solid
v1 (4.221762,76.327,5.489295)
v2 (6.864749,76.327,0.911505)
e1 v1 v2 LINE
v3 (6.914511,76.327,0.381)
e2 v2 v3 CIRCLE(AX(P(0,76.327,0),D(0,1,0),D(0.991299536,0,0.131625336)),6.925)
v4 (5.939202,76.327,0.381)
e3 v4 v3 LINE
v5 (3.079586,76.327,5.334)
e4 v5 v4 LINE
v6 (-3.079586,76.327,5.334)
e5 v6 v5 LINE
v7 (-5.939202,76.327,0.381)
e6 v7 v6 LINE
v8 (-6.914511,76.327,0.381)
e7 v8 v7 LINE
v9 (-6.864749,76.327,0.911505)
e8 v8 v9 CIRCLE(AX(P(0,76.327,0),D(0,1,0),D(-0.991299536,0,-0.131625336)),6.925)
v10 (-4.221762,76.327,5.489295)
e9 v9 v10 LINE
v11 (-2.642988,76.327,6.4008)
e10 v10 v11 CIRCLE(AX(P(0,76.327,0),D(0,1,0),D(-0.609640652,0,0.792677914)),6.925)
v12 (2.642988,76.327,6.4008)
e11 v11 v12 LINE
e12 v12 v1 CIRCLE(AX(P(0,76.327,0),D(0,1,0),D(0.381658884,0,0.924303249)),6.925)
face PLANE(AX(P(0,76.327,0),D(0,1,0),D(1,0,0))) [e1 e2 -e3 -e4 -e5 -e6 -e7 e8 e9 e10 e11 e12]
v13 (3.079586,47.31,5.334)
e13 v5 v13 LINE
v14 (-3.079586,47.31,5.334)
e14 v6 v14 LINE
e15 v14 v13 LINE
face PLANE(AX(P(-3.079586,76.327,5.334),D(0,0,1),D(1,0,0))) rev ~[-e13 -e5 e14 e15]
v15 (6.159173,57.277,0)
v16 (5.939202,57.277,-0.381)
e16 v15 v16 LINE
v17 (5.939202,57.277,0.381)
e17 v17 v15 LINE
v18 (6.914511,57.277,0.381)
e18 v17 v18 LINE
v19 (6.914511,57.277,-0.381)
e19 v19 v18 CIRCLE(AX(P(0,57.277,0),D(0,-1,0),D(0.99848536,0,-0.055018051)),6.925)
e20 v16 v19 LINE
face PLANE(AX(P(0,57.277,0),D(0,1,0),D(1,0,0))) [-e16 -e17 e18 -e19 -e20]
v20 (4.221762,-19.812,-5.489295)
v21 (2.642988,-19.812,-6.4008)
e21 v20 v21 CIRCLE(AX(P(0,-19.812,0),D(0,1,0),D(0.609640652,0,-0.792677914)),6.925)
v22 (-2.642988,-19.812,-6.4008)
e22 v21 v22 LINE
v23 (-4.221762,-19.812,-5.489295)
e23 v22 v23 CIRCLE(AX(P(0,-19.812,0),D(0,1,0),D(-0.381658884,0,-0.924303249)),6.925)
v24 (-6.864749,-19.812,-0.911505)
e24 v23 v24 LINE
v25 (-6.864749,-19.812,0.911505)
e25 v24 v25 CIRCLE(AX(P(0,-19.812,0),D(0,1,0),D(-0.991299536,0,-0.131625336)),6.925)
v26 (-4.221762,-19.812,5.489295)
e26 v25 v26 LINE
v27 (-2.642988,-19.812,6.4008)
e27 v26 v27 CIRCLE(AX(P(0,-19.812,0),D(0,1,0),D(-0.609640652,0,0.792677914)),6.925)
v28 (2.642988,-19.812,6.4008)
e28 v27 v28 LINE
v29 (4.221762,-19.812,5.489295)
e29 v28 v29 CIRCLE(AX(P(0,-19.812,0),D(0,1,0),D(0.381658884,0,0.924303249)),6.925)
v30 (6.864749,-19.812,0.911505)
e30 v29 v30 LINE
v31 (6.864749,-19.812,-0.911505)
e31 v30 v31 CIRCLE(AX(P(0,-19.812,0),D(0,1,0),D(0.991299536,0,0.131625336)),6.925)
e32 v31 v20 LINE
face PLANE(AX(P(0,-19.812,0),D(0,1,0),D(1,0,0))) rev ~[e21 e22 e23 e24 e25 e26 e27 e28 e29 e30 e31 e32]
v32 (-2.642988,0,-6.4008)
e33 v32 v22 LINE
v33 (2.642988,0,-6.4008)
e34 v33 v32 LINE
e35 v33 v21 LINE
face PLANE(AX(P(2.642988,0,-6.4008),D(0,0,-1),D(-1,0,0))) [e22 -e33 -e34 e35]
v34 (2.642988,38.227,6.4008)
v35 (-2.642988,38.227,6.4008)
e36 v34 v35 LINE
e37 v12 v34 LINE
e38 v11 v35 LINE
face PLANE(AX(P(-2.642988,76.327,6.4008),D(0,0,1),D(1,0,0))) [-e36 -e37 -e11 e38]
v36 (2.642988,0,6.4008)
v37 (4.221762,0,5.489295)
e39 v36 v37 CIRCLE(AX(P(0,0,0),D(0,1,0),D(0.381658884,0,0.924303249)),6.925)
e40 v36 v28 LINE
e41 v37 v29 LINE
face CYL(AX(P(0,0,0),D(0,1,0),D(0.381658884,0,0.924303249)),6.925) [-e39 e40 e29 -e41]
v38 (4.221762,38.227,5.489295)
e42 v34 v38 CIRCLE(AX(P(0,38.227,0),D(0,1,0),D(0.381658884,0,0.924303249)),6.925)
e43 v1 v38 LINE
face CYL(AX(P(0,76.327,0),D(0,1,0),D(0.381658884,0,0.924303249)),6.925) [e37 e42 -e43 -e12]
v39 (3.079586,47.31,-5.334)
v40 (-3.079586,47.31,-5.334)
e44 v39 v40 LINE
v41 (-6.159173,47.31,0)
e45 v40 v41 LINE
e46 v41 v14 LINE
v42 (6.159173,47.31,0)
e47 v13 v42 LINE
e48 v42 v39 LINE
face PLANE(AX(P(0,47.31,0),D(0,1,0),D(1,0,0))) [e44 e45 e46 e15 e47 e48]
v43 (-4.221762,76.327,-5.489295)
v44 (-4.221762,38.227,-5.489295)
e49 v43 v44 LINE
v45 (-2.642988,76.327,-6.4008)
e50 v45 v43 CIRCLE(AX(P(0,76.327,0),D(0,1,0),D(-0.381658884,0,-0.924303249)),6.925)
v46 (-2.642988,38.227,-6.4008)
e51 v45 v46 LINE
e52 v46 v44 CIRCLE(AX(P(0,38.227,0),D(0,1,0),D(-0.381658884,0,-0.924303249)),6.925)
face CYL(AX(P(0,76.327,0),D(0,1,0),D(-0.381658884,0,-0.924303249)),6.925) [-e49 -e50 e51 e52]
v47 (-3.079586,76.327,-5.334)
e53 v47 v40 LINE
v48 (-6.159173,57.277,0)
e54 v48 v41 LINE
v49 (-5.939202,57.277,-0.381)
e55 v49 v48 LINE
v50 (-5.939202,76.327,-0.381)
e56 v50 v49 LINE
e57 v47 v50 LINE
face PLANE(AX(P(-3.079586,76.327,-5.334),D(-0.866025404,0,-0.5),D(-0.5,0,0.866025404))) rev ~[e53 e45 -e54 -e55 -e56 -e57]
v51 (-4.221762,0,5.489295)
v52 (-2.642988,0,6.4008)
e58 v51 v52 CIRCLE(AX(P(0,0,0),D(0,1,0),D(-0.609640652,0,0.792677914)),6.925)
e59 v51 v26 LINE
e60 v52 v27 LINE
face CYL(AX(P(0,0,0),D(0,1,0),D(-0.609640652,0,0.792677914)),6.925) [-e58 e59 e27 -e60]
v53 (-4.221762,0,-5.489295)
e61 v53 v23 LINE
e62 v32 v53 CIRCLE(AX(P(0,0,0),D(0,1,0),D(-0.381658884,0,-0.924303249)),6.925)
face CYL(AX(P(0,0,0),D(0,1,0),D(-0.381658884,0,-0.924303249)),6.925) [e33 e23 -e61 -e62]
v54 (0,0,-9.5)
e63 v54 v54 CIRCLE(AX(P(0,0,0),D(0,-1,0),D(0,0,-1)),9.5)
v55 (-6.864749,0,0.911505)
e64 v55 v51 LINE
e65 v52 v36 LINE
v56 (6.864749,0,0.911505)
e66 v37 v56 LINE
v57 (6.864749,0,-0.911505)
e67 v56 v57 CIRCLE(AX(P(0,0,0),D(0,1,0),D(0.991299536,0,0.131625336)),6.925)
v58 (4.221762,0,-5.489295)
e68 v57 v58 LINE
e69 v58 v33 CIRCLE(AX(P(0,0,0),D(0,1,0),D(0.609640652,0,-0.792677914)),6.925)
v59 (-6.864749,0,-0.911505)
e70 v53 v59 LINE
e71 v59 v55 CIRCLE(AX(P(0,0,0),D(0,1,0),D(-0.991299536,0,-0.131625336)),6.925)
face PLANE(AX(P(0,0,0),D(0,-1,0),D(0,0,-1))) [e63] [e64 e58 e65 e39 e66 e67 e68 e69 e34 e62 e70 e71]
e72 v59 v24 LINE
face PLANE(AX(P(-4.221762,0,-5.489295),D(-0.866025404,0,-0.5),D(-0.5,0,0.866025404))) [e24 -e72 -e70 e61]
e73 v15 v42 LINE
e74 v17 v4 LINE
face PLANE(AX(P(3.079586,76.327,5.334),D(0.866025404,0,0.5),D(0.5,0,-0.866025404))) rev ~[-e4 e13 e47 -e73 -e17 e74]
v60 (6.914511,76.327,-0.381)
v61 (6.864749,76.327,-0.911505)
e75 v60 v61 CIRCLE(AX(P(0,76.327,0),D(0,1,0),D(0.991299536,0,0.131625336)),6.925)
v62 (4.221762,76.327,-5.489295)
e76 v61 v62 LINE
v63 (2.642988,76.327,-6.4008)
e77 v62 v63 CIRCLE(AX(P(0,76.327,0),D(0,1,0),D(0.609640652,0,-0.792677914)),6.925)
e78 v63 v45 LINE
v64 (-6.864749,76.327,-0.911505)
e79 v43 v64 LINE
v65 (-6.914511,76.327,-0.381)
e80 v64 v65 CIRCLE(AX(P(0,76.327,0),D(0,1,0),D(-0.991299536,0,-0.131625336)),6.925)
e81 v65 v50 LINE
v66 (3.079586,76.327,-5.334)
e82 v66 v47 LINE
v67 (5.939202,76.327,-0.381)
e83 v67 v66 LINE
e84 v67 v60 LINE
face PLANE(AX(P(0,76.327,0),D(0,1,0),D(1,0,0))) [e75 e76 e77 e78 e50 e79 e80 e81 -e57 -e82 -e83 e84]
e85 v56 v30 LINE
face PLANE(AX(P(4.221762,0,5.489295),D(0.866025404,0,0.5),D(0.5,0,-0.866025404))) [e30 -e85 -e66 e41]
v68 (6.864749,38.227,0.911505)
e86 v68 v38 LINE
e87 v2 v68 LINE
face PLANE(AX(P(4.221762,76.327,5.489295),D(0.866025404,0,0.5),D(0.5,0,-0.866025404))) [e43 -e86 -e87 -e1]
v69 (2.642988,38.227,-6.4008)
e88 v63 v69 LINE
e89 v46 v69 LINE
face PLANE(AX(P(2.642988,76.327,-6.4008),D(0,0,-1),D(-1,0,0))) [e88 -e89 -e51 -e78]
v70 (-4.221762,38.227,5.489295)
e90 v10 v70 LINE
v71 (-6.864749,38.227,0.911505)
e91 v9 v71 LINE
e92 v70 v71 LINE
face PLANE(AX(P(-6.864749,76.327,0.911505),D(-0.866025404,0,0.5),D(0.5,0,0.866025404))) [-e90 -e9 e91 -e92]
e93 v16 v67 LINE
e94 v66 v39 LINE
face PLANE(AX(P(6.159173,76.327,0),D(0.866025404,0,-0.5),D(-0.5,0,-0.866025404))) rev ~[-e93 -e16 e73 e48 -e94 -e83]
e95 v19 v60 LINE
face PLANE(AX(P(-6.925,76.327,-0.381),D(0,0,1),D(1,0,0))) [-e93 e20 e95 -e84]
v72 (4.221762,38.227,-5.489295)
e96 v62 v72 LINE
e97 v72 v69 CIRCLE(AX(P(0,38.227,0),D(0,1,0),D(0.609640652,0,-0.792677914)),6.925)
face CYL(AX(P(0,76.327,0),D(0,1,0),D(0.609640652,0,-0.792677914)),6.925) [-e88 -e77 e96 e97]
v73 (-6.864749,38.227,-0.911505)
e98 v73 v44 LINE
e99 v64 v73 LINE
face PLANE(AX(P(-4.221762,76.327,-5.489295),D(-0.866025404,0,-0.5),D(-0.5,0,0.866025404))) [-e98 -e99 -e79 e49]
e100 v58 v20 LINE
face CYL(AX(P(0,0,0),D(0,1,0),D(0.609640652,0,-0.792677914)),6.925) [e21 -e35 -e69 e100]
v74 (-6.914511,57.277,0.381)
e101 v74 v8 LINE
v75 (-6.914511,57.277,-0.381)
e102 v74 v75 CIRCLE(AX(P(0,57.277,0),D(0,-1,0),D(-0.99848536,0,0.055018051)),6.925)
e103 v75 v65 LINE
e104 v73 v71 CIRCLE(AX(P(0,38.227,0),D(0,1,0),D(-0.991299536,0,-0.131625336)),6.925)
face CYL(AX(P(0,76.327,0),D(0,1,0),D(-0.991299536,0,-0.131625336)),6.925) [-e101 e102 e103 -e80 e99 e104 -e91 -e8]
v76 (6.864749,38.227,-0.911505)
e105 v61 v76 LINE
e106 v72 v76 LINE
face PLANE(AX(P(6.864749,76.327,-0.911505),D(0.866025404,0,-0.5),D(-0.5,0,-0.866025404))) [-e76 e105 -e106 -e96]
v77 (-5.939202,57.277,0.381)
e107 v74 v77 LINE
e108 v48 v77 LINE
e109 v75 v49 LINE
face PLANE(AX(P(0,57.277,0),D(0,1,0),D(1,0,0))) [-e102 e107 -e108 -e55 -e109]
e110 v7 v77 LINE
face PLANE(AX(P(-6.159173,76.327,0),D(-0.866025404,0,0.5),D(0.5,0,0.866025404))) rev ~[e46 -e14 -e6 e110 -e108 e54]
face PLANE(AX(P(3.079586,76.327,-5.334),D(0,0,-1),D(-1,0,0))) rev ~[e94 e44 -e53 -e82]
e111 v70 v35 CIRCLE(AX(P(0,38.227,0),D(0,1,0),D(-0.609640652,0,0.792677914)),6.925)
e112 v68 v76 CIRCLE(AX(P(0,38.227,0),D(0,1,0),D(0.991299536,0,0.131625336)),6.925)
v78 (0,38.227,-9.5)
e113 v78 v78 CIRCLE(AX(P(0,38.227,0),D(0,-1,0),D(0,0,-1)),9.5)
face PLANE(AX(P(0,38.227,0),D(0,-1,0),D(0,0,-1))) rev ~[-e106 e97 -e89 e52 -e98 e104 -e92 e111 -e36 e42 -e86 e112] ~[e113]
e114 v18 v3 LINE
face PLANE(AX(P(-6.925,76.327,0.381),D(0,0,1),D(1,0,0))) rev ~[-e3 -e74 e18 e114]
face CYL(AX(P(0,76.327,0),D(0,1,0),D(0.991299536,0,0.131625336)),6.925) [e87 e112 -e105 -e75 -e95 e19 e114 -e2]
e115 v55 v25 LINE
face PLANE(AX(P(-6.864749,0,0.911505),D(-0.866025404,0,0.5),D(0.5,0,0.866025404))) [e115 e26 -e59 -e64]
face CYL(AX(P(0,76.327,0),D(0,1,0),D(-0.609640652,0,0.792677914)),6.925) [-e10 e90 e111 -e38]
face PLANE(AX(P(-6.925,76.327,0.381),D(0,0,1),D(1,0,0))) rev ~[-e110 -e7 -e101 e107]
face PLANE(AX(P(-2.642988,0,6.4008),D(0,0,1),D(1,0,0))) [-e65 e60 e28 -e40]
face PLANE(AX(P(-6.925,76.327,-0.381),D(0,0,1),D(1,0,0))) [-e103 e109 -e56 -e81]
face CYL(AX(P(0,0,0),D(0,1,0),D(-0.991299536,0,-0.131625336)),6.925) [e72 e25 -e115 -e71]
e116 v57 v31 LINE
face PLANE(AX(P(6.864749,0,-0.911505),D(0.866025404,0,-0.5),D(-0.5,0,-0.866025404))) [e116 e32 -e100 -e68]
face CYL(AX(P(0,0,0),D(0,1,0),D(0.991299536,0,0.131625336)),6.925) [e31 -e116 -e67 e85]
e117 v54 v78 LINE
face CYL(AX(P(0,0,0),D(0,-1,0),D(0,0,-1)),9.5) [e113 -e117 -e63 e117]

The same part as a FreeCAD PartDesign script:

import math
import FreeCAD as App
import Part
import Sketcher
Q = App.Units.Quantity


def add_polygon(sketch, points):
    """Adds a closed chain of lines whose ends are joined by coincident constraints."""
    first, n = sketch.GeometryCount, len(points)
    for a, b in zip(points, points[1:] + points[:1]):
        sketch.addGeometry(Part.LineSegment(App.Vector(*a, 0), App.Vector(*b, 0)), False)
    for i in range(n):
        sketch.addConstraint(Sketcher.Constraint("Coincident", first + i, 2, first + (i + 1) % n, 1))

doc = App.newDocument("Part")
body = doc.addObject("PartDesign::Body", "Body")

sketch1 = body.newObject("Sketcher::SketchObject", "Sketch")
sketch1.AttachmentSupport = (doc.getObject("XZ_Plane"), [""])
sketch1.MapMode = "FlatFace"
sketch1.addGeometry(Part.LineSegment(App.Vector(6.864749, -0.911505, 0), App.Vector(4.221762, -5.489295, 0)), False)
sketch1.addGeometry(Part.ArcOfCircle(Part.Circle(App.Vector(0, 0, 0), App.Vector(0, 0, 1), 6.925), math.radians(-67.563524), math.radians(-52.436476)), False)
sketch1.addGeometry(Part.LineSegment(App.Vector(2.642988, -6.4008, 0), App.Vector(-2.642988, -6.4008, 0)), False)
sketch1.addGeometry(Part.ArcOfCircle(Part.Circle(App.Vector(0, 0, 0), App.Vector(0, 0, 1), 6.925), math.radians(-127.563524), math.radians(-112.436476)), False)
sketch1.addGeometry(Part.LineSegment(App.Vector(-4.221762, -5.489295, 0), App.Vector(-6.864749, -0.911505, 0)), False)
sketch1.addGeometry(Part.ArcOfCircle(Part.Circle(App.Vector(0, 0, 0), App.Vector(0, 0, 1), 6.925), math.radians(172.436476), math.radians(187.563524)), False)
sketch1.addGeometry(Part.LineSegment(App.Vector(-6.864749, 0.911505, 0), App.Vector(-4.221762, 5.489295, 0)), False)
sketch1.addGeometry(Part.ArcOfCircle(Part.Circle(App.Vector(0, 0, 0), App.Vector(0, 0, 1), 6.925), math.radians(112.436476), math.radians(127.563524)), False)
sketch1.addGeometry(Part.LineSegment(App.Vector(-2.642988, 6.4008, 0), App.Vector(2.642988, 6.4008, 0)), False)
sketch1.addGeometry(Part.ArcOfCircle(Part.Circle(App.Vector(0, 0, 0), App.Vector(0, 0, 1), 6.925), math.radians(52.436476), math.radians(67.563524)), False)
sketch1.addGeometry(Part.LineSegment(App.Vector(4.221762, 5.489295, 0), App.Vector(6.864749, 0.911505, 0)), False)
sketch1.addGeometry(Part.ArcOfCircle(Part.Circle(App.Vector(0, 0, 0), App.Vector(0, 0, 1), 6.925), math.radians(-7.563524), math.radians(7.563524)), False)
sketch1.addConstraint(Sketcher.Constraint("Coincident", 0, 2, 1, 2))
sketch1.addConstraint(Sketcher.Constraint("Coincident", 1, 1, 2, 1))
sketch1.addConstraint(Sketcher.Constraint("Coincident", 2, 2, 3, 2))
sketch1.addConstraint(Sketcher.Constraint("Coincident", 3, 1, 4, 1))
sketch1.addConstraint(Sketcher.Constraint("Coincident", 4, 2, 5, 2))
sketch1.addConstraint(Sketcher.Constraint("Coincident", 5, 1, 6, 1))
sketch1.addConstraint(Sketcher.Constraint("Coincident", 6, 2, 7, 2))
sketch1.addConstraint(Sketcher.Constraint("Coincident", 7, 1, 8, 1))
sketch1.addConstraint(Sketcher.Constraint("Coincident", 8, 2, 9, 2))
sketch1.addConstraint(Sketcher.Constraint("Coincident", 9, 1, 10, 1))
sketch1.addConstraint(Sketcher.Constraint("Coincident", 10, 2, 11, 2))
sketch1.addConstraint(Sketcher.Constraint("Coincident", 11, 1, 0, 1))
sketch1.addConstraint(Sketcher.Constraint("Horizontal", 2))
sketch1.addConstraint(Sketcher.Constraint("Horizontal", 8))
sketch1.addConstraint(Sketcher.Constraint("Coincident", 1, 3, -1, 1))
sketch1.addConstraint(Sketcher.Constraint("Coincident", 3, 3, -1, 1))
sketch1.addConstraint(Sketcher.Constraint("Coincident", 5, 3, -1, 1))
sketch1.addConstraint(Sketcher.Constraint("Coincident", 7, 3, -1, 1))
sketch1.addConstraint(Sketcher.Constraint("Coincident", 9, 3, -1, 1))
sketch1.addConstraint(Sketcher.Constraint("Coincident", 11, 3, -1, 1))
sketch1.addConstraint(Sketcher.Constraint("Equal", 1, 3))
sketch1.addConstraint(Sketcher.Constraint("Equal", 3, 5))
sketch1.addConstraint(Sketcher.Constraint("Equal", 5, 7))
sketch1.addConstraint(Sketcher.Constraint("Equal", 7, 9))
sketch1.addConstraint(Sketcher.Constraint("Equal", 9, 11))
sketch1.addConstraint(Sketcher.Constraint("Parallel", 0, 6))
sketch1.addConstraint(Sketcher.Constraint("Parallel", 4, 10))
sketch1.addConstraint(Sketcher.Constraint("Horizontal", 0, 2, 3, 1))
sketch1.addConstraint(Sketcher.Constraint("Horizontal", 6, 2, 9, 1))
sketch1.addConstraint(Sketcher.Constraint("Horizontal", 5, 1, 10, 2))
sketch1.addConstraint(Sketcher.Constraint("Vertical", 4, 2, 5, 1))
sketch1.addConstraint(Sketcher.Constraint("Vertical", 2, 2, 7, 1))
sketch1.addConstraint(Sketcher.Constraint("Angle", 0, Q("-120 deg")))
sketch1.addConstraint(Sketcher.Constraint("Radius", 1, 6.925))
sketch1.addConstraint(Sketcher.Constraint("DistanceY", 1, 1, -1, 1, Q("0.252 in")))
sketch1.addConstraint(Sketcher.Constraint("DistanceY", 3, 1, 5, 1, Q("0.252 in")))
pad1 = body.newObject("PartDesign::Pad", "Pad")
pad1.Profile = sketch1
pad1.Length = Q("0.78 in")

sketch2 = body.newObject("Sketcher::SketchObject", "Sketch001")
sketch2.AttachmentSupport = (doc.getObject("XZ_Plane"), [""])
sketch2.MapMode = "FlatFace"
sketch2.addGeometry(Part.Circle(App.Vector(0, 0, 0), App.Vector(0, 0, 1), 9.5), False)
sketch2.addConstraint(Sketcher.Constraint("Coincident", 0, 3, -1, 1))
sketch2.addConstraint(Sketcher.Constraint("Diameter", 0, 19.0))
pad2 = body.newObject("PartDesign::Pad", "Pad001")
pad2.Profile = sketch2
pad2.Length = Q("1.505 in")
pad2.Reversed = True

sketch3 = body.newObject("Sketcher::SketchObject", "Sketch002")
sketch3.AttachmentSupport = (doc.getObject("XZ_Plane"), [""])
sketch3.MapMode = "FlatFace"
sketch3.AttachmentOffset = App.Placement(App.Vector(0, 0, -3.005 * 25.4), App.Rotation())
sketch3.addGeometry(Part.LineSegment(App.Vector(6.864749, -0.911505, 0), App.Vector(4.221762, -5.489295, 0)), False)
sketch3.addGeometry(Part.ArcOfCircle(Part.Circle(App.Vector(0, 0, 0), App.Vector(0, 0, 1), 6.925), math.radians(-67.563524), math.radians(-52.436476)), False)
sketch3.addGeometry(Part.LineSegment(App.Vector(2.642988, -6.4008, 0), App.Vector(-2.642988, -6.4008, 0)), False)
sketch3.addGeometry(Part.ArcOfCircle(Part.Circle(App.Vector(0, 0, 0), App.Vector(0, 0, 1), 6.925), math.radians(-127.563524), math.radians(-112.436476)), False)
sketch3.addGeometry(Part.LineSegment(App.Vector(-4.221762, -5.489295, 0), App.Vector(-6.864749, -0.911505, 0)), False)
sketch3.addGeometry(Part.ArcOfCircle(Part.Circle(App.Vector(0, 0, 0), App.Vector(0, 0, 1), 6.925), math.radians(172.436476), math.radians(187.563524)), False)
sketch3.addGeometry(Part.LineSegment(App.Vector(-6.864749, 0.911505, 0), App.Vector(-4.221762, 5.489295, 0)), False)
sketch3.addGeometry(Part.ArcOfCircle(Part.Circle(App.Vector(0, 0, 0), App.Vector(0, 0, 1), 6.925), math.radians(112.436476), math.radians(127.563524)), False)
sketch3.addGeometry(Part.LineSegment(App.Vector(-2.642988, 6.4008, 0), App.Vector(2.642988, 6.4008, 0)), False)
sketch3.addGeometry(Part.ArcOfCircle(Part.Circle(App.Vector(0, 0, 0), App.Vector(0, 0, 1), 6.925), math.radians(52.436476), math.radians(67.563524)), False)
sketch3.addGeometry(Part.LineSegment(App.Vector(4.221762, 5.489295, 0), App.Vector(6.864749, 0.911505, 0)), False)
sketch3.addGeometry(Part.ArcOfCircle(Part.Circle(App.Vector(0, 0, 0), App.Vector(0, 0, 1), 6.925), math.radians(-7.563524), math.radians(7.563524)), False)
sketch3.addConstraint(Sketcher.Constraint("Coincident", 0, 2, 1, 2))
sketch3.addConstraint(Sketcher.Constraint("Coincident", 1, 1, 2, 1))
sketch3.addConstraint(Sketcher.Constraint("Coincident", 2, 2, 3, 2))
sketch3.addConstraint(Sketcher.Constraint("Coincident", 3, 1, 4, 1))
sketch3.addConstraint(Sketcher.Constraint("Coincident", 4, 2, 5, 2))
sketch3.addConstraint(Sketcher.Constraint("Coincident", 5, 1, 6, 1))
sketch3.addConstraint(Sketcher.Constraint("Coincident", 6, 2, 7, 2))
sketch3.addConstraint(Sketcher.Constraint("Coincident", 7, 1, 8, 1))
sketch3.addConstraint(Sketcher.Constraint("Coincident", 8, 2, 9, 2))
sketch3.addConstraint(Sketcher.Constraint("Coincident", 9, 1, 10, 1))
sketch3.addConstraint(Sketcher.Constraint("Coincident", 10, 2, 11, 2))
sketch3.addConstraint(Sketcher.Constraint("Coincident", 11, 1, 0, 1))
sketch3.addConstraint(Sketcher.Constraint("Horizontal", 2))
sketch3.addConstraint(Sketcher.Constraint("Horizontal", 8))
sketch3.addConstraint(Sketcher.Constraint("Coincident", 1, 3, -1, 1))
sketch3.addConstraint(Sketcher.Constraint("Coincident", 3, 3, -1, 1))
sketch3.addConstraint(Sketcher.Constraint("Coincident", 5, 3, -1, 1))
sketch3.addConstraint(Sketcher.Constraint("Coincident", 7, 3, -1, 1))
sketch3.addConstraint(Sketcher.Constraint("Coincident", 9, 3, -1, 1))
sketch3.addConstraint(Sketcher.Constraint("Coincident", 11, 3, -1, 1))
sketch3.addConstraint(Sketcher.Constraint("Equal", 1, 3))
sketch3.addConstraint(Sketcher.Constraint("Equal", 3, 5))
sketch3.addConstraint(Sketcher.Constraint("Equal", 5, 7))
sketch3.addConstraint(Sketcher.Constraint("Equal", 7, 9))
sketch3.addConstraint(Sketcher.Constraint("Equal", 9, 11))
sketch3.addConstraint(Sketcher.Constraint("Parallel", 0, 6))
sketch3.addConstraint(Sketcher.Constraint("Parallel", 4, 10))
sketch3.addConstraint(Sketcher.Constraint("Horizontal", 0, 2, 3, 1))
sketch3.addConstraint(Sketcher.Constraint("Horizontal", 6, 2, 9, 1))
sketch3.addConstraint(Sketcher.Constraint("Horizontal", 5, 1, 10, 2))
sketch3.addConstraint(Sketcher.Constraint("Vertical", 4, 2, 5, 1))
sketch3.addConstraint(Sketcher.Constraint("Vertical", 2, 2, 7, 1))
sketch3.addConstraint(Sketcher.Constraint("Angle", 0, Q("-120 deg")))
sketch3.addConstraint(Sketcher.Constraint("Radius", 1, 6.925))
sketch3.addConstraint(Sketcher.Constraint("DistanceY", 1, 1, -1, 1, Q("0.252 in")))
sketch3.addConstraint(Sketcher.Constraint("DistanceY", 3, 1, 5, 1, Q("0.252 in")))
pad3 = body.newObject("PartDesign::Pad", "Pad002")
pad3.Profile = sketch3
pad3.Length = Q("3.005 in")

sketch4 = body.newObject("Sketcher::SketchObject", "Sketch003")
sketch4.AttachmentSupport = (doc.getObject("XZ_Plane"), [""])
sketch4.MapMode = "FlatFace"
sketch4.AttachmentOffset = App.Placement(App.Vector(0, 0, -3.005 * 25.4), App.Rotation())
add_polygon(sketch4, [(-6.925, -0.381), (-6.925, 0.381), (6.925, 0.381), (6.925, -0.381)])
sketch4.addConstraint(Sketcher.Constraint("Vertical", 0))
sketch4.addConstraint(Sketcher.Constraint("Horizontal", 1))
sketch4.addConstraint(Sketcher.Constraint("Vertical", 2))
sketch4.addConstraint(Sketcher.Constraint("Horizontal", 3))
sketch4.addConstraint(Sketcher.Constraint("Symmetric", 0, 2, 2, 2, -1, 1))
sketch4.addConstraint(Sketcher.Constraint("DistanceY", 0, 1, 0, 2, Q("0.03 in")))
sketch4.addConstraint(Sketcher.Constraint("DistanceX", 1, 1, 1, 2, 13.85))
pocket1 = body.newObject("PartDesign::Pocket", "Pocket")
pocket1.Profile = sketch4
pocket1.Length = Q("0.75 in")
pocket1.Reversed = True

sketch5 = body.newObject("Sketcher::SketchObject", "Sketch004")
sketch5.AttachmentSupport = (doc.getObject("XZ_Plane"), [""])
sketch5.MapMode = "FlatFace"
sketch5.AttachmentOffset = App.Placement(App.Vector(0, 0, -3.005 * 25.4), App.Rotation())
add_polygon(sketch5, [(3.079586, -5.334), (-3.079586, -5.334), (-6.159173, 0), (-3.079586, 5.334), (3.079586, 5.334), (6.159173, 0)])
sketch5.addConstraint(Sketcher.Constraint("Horizontal", 0))
sketch5.addConstraint(Sketcher.Constraint("Horizontal", 3))
sketch5.addConstraint(Sketcher.Constraint("Symmetric", 0, 2, 3, 2, -1, 1))
sketch5.addConstraint(Sketcher.Constraint("Symmetric", 1, 2, 4, 2, -1, 1))
sketch5.addConstraint(Sketcher.Constraint("PointOnObject", 1, 2, -1))
sketch5.addConstraint(Sketcher.Constraint("Parallel", 2, 5))
sketch5.addConstraint(Sketcher.Constraint("Vertical", 0, 2, 2, 2))
sketch5.addConstraint(Sketcher.Constraint("Angle", 1, Q("120 deg")))
sketch5.addConstraint(Sketcher.Constraint("DistanceY", 0, 2, -1, 1, Q("0.21 in")))
sketch5.addConstraint(Sketcher.Constraint("DistanceX", 0, 2, 0, 1, 6.159173))
pocket2 = body.newObject("PartDesign::Pocket", "Pocket001")
pocket2.Profile = sketch5
pocket2.Length = 29.017
pocket2.Reversed = True

doc.recompute()
